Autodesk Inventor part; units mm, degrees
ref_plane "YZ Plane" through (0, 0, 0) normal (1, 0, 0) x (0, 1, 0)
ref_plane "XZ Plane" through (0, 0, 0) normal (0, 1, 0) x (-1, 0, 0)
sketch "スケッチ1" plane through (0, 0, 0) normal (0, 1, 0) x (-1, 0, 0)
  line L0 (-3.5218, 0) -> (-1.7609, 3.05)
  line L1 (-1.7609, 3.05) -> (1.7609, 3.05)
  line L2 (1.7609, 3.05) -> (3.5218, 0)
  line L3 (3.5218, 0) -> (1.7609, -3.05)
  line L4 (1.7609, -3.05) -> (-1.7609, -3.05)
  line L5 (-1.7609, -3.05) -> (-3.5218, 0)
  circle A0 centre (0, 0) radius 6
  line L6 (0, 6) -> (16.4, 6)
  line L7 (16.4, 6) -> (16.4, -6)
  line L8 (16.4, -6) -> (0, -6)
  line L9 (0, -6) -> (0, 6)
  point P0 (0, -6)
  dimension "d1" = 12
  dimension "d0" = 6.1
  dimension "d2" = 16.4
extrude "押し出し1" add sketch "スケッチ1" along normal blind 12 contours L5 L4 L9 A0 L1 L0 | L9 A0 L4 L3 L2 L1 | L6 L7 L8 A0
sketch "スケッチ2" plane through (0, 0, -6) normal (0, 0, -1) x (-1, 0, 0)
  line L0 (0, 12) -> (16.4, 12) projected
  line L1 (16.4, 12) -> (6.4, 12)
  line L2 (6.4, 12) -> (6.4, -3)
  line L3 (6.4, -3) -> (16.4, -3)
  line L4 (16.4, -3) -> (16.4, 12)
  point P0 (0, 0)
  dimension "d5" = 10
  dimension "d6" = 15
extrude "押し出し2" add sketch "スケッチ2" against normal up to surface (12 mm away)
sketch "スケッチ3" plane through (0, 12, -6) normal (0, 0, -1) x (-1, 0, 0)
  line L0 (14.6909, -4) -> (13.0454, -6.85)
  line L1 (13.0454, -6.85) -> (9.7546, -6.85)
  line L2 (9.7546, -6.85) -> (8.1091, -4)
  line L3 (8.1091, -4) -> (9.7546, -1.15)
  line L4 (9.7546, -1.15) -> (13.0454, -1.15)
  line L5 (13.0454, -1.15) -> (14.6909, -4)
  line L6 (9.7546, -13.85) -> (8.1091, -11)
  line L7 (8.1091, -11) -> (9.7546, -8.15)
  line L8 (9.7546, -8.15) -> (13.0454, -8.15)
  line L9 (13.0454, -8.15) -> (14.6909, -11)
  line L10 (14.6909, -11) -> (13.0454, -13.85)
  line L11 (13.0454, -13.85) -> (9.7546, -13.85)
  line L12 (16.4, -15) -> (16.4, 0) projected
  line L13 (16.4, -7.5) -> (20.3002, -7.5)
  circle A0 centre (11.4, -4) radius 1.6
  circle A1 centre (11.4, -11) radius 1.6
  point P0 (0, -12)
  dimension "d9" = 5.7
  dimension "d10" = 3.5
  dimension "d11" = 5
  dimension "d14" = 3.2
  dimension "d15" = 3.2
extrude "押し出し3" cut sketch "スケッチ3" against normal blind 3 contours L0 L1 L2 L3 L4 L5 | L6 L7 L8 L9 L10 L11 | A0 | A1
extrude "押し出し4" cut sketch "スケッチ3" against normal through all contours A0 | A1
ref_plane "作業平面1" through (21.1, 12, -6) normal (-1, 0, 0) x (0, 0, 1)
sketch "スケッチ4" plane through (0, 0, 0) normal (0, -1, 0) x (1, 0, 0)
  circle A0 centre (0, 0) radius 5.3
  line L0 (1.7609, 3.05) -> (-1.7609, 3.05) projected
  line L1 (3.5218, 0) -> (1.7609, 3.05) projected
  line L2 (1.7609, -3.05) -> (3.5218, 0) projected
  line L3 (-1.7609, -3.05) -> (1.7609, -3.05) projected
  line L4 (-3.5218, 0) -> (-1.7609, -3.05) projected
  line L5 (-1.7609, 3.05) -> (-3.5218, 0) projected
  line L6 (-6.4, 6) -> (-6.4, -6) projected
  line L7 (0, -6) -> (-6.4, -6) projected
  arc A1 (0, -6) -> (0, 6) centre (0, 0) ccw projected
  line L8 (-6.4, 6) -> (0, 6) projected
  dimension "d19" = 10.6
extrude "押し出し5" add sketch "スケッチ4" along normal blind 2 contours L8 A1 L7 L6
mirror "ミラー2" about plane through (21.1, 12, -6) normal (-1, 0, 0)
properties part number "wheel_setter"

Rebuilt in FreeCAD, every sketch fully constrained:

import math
import FreeCAD as App
import Part
import Sketcher

V = App.Vector
Q = App.Units.Quantity

doc = App.newDocument("Part")
body = doc.addObject("PartDesign::Body", "Body")
body.AllowCompound = True

# Sketch on XZ plane
sketch1 = body.newObject("Sketcher::SketchObject", "Sketch")
sketch1.AttachmentSupport = (doc.getObject("XZ_Plane"), [""])
sketch1.MapMode = "FlatFace"
sketch1.addGeometry(Part.ArcOfCircle(Part.Circle(V(0, 0, 0), V(0, 0, 1), 6), math.radians(-90), math.radians(90)), False)
sketch1.addGeometry(Part.LineSegment(V(0, -6, 0), V(-16.4, -6, 0)), False)
sketch1.addGeometry(Part.LineSegment(V(-16.4, -6, 0), V(-16.4, 6, 0)), False)
sketch1.addGeometry(Part.LineSegment(V(-16.4, 6, 0), V(0, 6, 0)), False)
sketch1.addGeometry(Part.LineSegment(V(1.8, -3, 0), V(3.5, 0, 0)), False)
sketch1.addGeometry(Part.LineSegment(V(3.5, 0, 0), V(1.8, 3, 0)), False)
sketch1.addGeometry(Part.LineSegment(V(1.8, 3, 0), V(-1.8, 3, 0)), False)
sketch1.addGeometry(Part.LineSegment(V(-1.8, 3, 0), V(-3.5, 0, 0)), False)
sketch1.addGeometry(Part.LineSegment(V(-3.5, 0, 0), V(-1.8, -3, 0)), False)
sketch1.addGeometry(Part.LineSegment(V(-1.8, -3, 0), V(1.8, -3, 0)), False)
sketch1.addConstraint(Sketcher.Constraint("Tangent", 0, 1, 1, 1))
sketch1.addConstraint(Sketcher.Constraint("Coincident", 1, 2, 2, 1))
sketch1.addConstraint(Sketcher.Constraint("Coincident", 2, 2, 3, 1))
sketch1.addConstraint(Sketcher.Constraint("Tangent", 3, 2, 0, 2))
sketch1.addConstraint(Sketcher.Constraint("Coincident", 4, 2, 5, 1))
sketch1.addConstraint(Sketcher.Constraint("Coincident", 5, 2, 6, 1))
sketch1.addConstraint(Sketcher.Constraint("Coincident", 6, 2, 7, 1))
sketch1.addConstraint(Sketcher.Constraint("Coincident", 7, 2, 8, 1))
sketch1.addConstraint(Sketcher.Constraint("Coincident", 8, 2, 9, 1))
sketch1.addConstraint(Sketcher.Constraint("Coincident", 9, 2, 4, 1))
sketch1.addConstraint(Sketcher.Constraint("Horizontal", 1))
sketch1.addConstraint(Sketcher.Constraint("Vertical", 2))
sketch1.addConstraint(Sketcher.Constraint("Horizontal", 3))
sketch1.addConstraint(Sketcher.Constraint("Horizontal", 6))
sketch1.addConstraint(Sketcher.Constraint("Horizontal", 9))
sketch1.addConstraint(Sketcher.Constraint("Coincident", 0, 3, -1, 1))
sketch1.addConstraint(Sketcher.Constraint("Symmetric", 4, 2, 7, 2, -1, 1))
sketch1.addConstraint(Sketcher.Constraint("Symmetric", 5, 2, 8, 2, -1, 1))
sketch1.addConstraint(Sketcher.Constraint("PointOnObject", 4, 2, -1))
sketch1.addConstraint(Sketcher.Constraint("Parallel", 4, 7))
sketch1.addConstraint(Sketcher.Constraint("Vertical", 6, 2, 8, 2))
sketch1.addConstraint(Sketcher.Constraint("Radius", 0, Q("6 mm")))
sketch1.addConstraint(Sketcher.Constraint("DistanceX", 1, 2, 1, 1, Q("16.4 mm")))
sketch1.addConstraint(Sketcher.Constraint("DistanceY", 8, 2, 6, 2, Q("6.1 mm")))
sketch1.addConstraint(Sketcher.Constraint("Angle", 4, Q("60.0003 deg")))
sketch1.addConstraint(Sketcher.Constraint("DistanceX", 6, 2, 6, 1, Q("3.5218 mm")))
pad1 = body.newObject("PartDesign::Pad", "Pad")
pad1.Profile = sketch1
pad1.Length = 12
pad1.Reversed = True

# Sketch on XY plane
sketch2 = body.newObject("Sketcher::SketchObject", "Sketch001")
sketch2.AttachmentSupport = (doc.getObject("XY_Plane"), [""])
sketch2.MapMode = "FlatFace"
sketch2.AttachmentOffset = App.Placement(V(0, 0, -6), App.Rotation())
sketch2.addGeometry(Part.LineSegment(V(-16, 12, 0), V(-6, 12, 0)), False)
sketch2.addGeometry(Part.LineSegment(V(-6, 12, 0), V(-6, -3, 0)), False)
sketch2.addGeometry(Part.LineSegment(V(-6, -3, 0), V(-16, -3, 0)), False)
sketch2.addGeometry(Part.LineSegment(V(-16, -3, 0), V(-16, 12, 0)), False)
sketch2.addConstraint(Sketcher.Constraint("Coincident", 0, 2, 1, 1))
sketch2.addConstraint(Sketcher.Constraint("Coincident", 1, 2, 2, 1))
sketch2.addConstraint(Sketcher.Constraint("Coincident", 2, 2, 3, 1))
sketch2.addConstraint(Sketcher.Constraint("Coincident", 3, 2, 0, 1))
sketch2.addConstraint(Sketcher.Constraint("Horizontal", 0))
sketch2.addConstraint(Sketcher.Constraint("Vertical", 1))
sketch2.addConstraint(Sketcher.Constraint("Horizontal", 2))
sketch2.addConstraint(Sketcher.Constraint("Vertical", 3))
sketch2.addConstraint(Sketcher.Constraint("DistanceX", 0, 1, 0, 2, Q("10 mm")))
sketch2.addConstraint(Sketcher.Constraint("DistanceY", 1, 2, 1, 1, Q("15 mm")))
sketch2.addConstraint(Sketcher.Constraint("DistanceY", -1, 1, 0, 2, Q("12 mm")))
sketch2.addConstraint(Sketcher.Constraint("DistanceX", 0, 2, -1, 1, Q("6.4 mm")))
pad2 = body.newObject("PartDesign::Pad", "Pad001")
pad2.Profile = sketch2
pad2.Length = 12

# Sketch on XY plane
sketch3 = body.newObject("Sketcher::SketchObject", "Sketch002")
sketch3.AttachmentSupport = (doc.getObject("XY_Plane"), [""])
sketch3.MapMode = "FlatFace"
sketch3.AttachmentOffset = App.Placement(V(0, 0, -6), App.Rotation())
sketch3.addGeometry(Part.LineSegment(V(-13, 5.2, 0), V(-14.7, 8, 0)), False)
sketch3.addGeometry(Part.LineSegment(V(-14.7, 8, 0), V(-13, 10.8, 0)), False)
sketch3.addGeometry(Part.LineSegment(V(-13, 10.8, 0), V(-9.8, 10.8, 0)), False)
sketch3.addGeometry(Part.LineSegment(V(-9.8, 10.8, 0), V(-8.1, 8, 0)), False)
sketch3.addGeometry(Part.LineSegment(V(-8.1, 8, 0), V(-9.8, 5.2, 0)), False)
sketch3.addGeometry(Part.LineSegment(V(-9.8, 5.2, 0), V(-13, 5.2, 0)), False)
sketch3.addGeometry(Part.LineSegment(V(-8.1, 1, 0), V(-9.8, -1.9, 0)), False)
sketch3.addGeometry(Part.LineSegment(V(-9.8, -1.9, 0), V(-13, -1.9, 0)), False)
sketch3.addGeometry(Part.LineSegment(V(-13, -1.9, 0), V(-14.7, 1, 0)), False)
sketch3.addGeometry(Part.LineSegment(V(-14.7, 1, 0), V(-13, 3.9, 0)), False)
sketch3.addGeometry(Part.LineSegment(V(-13, 3.9, 0), V(-9.8, 3.9, 0)), False)
sketch3.addGeometry(Part.LineSegment(V(-9.8, 3.9, 0), V(-8.1, 1, 0)), False)
sketch3.addConstraint(Sketcher.Constraint("Coincident", 0, 2, 1, 1))
sketch3.addConstraint(Sketcher.Constraint("Coincident", 1, 2, 2, 1))
sketch3.addConstraint(Sketcher.Constraint("Coincident", 2, 2, 3, 1))
sketch3.addConstraint(Sketcher.Constraint("Coincident", 3, 2, 4, 1))
sketch3.addConstraint(Sketcher.Constraint("Coincident", 4, 2, 5, 1))
sketch3.addConstraint(Sketcher.Constraint("Coincident", 5, 2, 0, 1))
sketch3.addConstraint(Sketcher.Constraint("Coincident", 6, 2, 7, 1))
sketch3.addConstraint(Sketcher.Constraint("Coincident", 7, 2, 8, 1))
sketch3.addConstraint(Sketcher.Constraint("Coincident", 8, 2, 9, 1))
sketch3.addConstraint(Sketcher.Constraint("Coincident", 9, 2, 10, 1))
sketch3.addConstraint(Sketcher.Constraint("Coincident", 10, 2, 11, 1))
sketch3.addConstraint(Sketcher.Constraint("Coincident", 11, 2, 6, 1))
sketch3.addConstraint(Sketcher.Constraint("Horizontal", 2))
sketch3.addConstraint(Sketcher.Constraint("Horizontal", 5))
sketch3.addConstraint(Sketcher.Constraint("Horizontal", 7))
sketch3.addConstraint(Sketcher.Constraint("Horizontal", 10))
sketch3.addConstraint(Sketcher.Constraint("Parallel", 0, 3))
sketch3.addConstraint(Sketcher.Constraint("Parallel", 1, 4))
sketch3.addConstraint(Sketcher.Constraint("Parallel", 4, 6))
sketch3.addConstraint(Sketcher.Constraint("Parallel", 3, 8))
sketch3.addConstraint(Sketcher.Constraint("Parallel", 6, 9))
sketch3.addConstraint(Sketcher.Constraint("Parallel", 8, 11))
sketch3.addConstraint(Sketcher.Constraint("Horizontal", 0, 2, 3, 2))
sketch3.addConstraint(Sketcher.Constraint("Horizontal", 8, 2, 11, 2))
sketch3.addConstraint(Sketcher.Constraint("Vertical", 2, 2, 4, 2))
sketch3.addConstraint(Sketcher.Constraint("Vertical", 1, 2, 5, 2))
sketch3.addConstraint(Sketcher.Constraint("Vertical", 4, 2, 6, 2))
sketch3.addConstraint(Sketcher.Constraint("Vertical", 5, 2, 7, 2))
sketch3.addConstraint(Sketcher.Constraint("Vertical", 0, 2, 8, 2))
sketch3.addConstraint(Sketcher.Constraint("Vertical", 7, 2, 9, 2))
sketch3.addConstraint(Sketcher.Constraint("DistanceY", 4, 2, 2, 2, Q("5.7 mm")))
sketch3.addConstraint(Sketcher.Constraint("Angle", 0, Q("120.0008 deg")))
sketch3.addConstraint(Sketcher.Constraint("DistanceY", -1, 1, 0, 2, Q("8 mm")))
sketch3.addConstraint(Sketcher.Constraint("DistanceY", -1, 1, 8, 2, Q("1 mm")))
sketch3.addConstraint(Sketcher.Constraint("DistanceX", 2, 1, 2, 2, Q("3.2908 mm")))
sketch3.addConstraint(Sketcher.Constraint("DistanceX", 0, 2, -1, 1, Q("14.691 mm")))
pocket1 = body.newObject("PartDesign::Pocket", "Pocket")
pocket1.Profile = sketch3
pocket1.Length = 3
pocket1.Reversed = True

# Sketch on XY plane
sketch4 = body.newObject("Sketcher::SketchObject", "Sketch003")
sketch4.AttachmentSupport = (doc.getObject("XY_Plane"), [""])
sketch4.MapMode = "FlatFace"
sketch4.AttachmentOffset = App.Placement(V(0, 0, -6), App.Rotation())
sketch4.addGeometry(Part.Circle(V(-11.4, 8, 0), V(0, 0, 1), 1.6), False)
sketch4.addGeometry(Part.Circle(V(-11.4, 1, 0), V(0, 0, 1), 1.6), False)
sketch4.addConstraint(Sketcher.Constraint("Equal", 0, 1))
sketch4.addConstraint(Sketcher.Constraint("Vertical", 0, 3, 1, 3))
sketch4.addConstraint(Sketcher.Constraint("Diameter", 0, Q("3.2 mm")))
sketch4.addConstraint(Sketcher.Constraint("DistanceY", -1, 1, 0, 3, Q("8 mm")))
sketch4.addConstraint(Sketcher.Constraint("DistanceY", -1, 1, 1, 3, Q("1 mm")))
sketch4.addConstraint(Sketcher.Constraint("DistanceX", 0, 3, -1, 1, Q("11.4 mm")))
pocket2 = body.newObject("PartDesign::Pocket", "Pocket001")
pocket2.Profile = sketch4
pocket2.Type = "ThroughAll"
pocket2.Reversed = True

# Sketch on XZ plane
sketch5 = body.newObject("Sketcher::SketchObject", "Sketch004")
sketch5.AttachmentSupport = (doc.getObject("XZ_Plane"), [""])
sketch5.MapMode = "FlatFace"
sketch5.addGeometry(Part.LineSegment(V(0, 6, 0), V(-6, 6, 0)), False)
sketch5.addGeometry(Part.LineSegment(V(-6, 6, 0), V(-6, -6, 0)), False)
sketch5.addGeometry(Part.LineSegment(V(-6, -6, 0), V(0, -6, 0)), False)
sketch5.addGeometry(Part.ArcOfCircle(Part.Circle(V(0, 0, 0), V(0, 0, 1), 6), math.radians(-90), math.radians(90)), False)
sketch5.addGeometry(Part.Circle(V(0, 0, 0), V(0, 0, 1), 5), False)
sketch5.addConstraint(Sketcher.Constraint("Coincident", 0, 2, 1, 1))
sketch5.addConstraint(Sketcher.Constraint("Coincident", 1, 2, 2, 1))
sketch5.addConstraint(Sketcher.Constraint("Tangent", 2, 2, 3, 1))
sketch5.addConstraint(Sketcher.Constraint("Tangent", 3, 2, 0, 1))
sketch5.addConstraint(Sketcher.Constraint("Horizontal", 0))
sketch5.addConstraint(Sketcher.Constraint("Vertical", 1))
sketch5.addConstraint(Sketcher.Constraint("Horizontal", 2))
sketch5.addConstraint(Sketcher.Constraint("Coincident", 3, 3, -1, 1))
sketch5.addConstraint(Sketcher.Constraint("Coincident", 4, 3, -1, 1))
sketch5.addConstraint(Sketcher.Constraint("Diameter", 4, Q("10.6 mm")))
sketch5.addConstraint(Sketcher.Constraint("Radius", 3, Q("6 mm")))
sketch5.addConstraint(Sketcher.Constraint("DistanceX", 0, 2, 0, 1, Q("6.4 mm")))
pad3 = body.newObject("PartDesign::Pad", "Pad002")
pad3.Profile = sketch5
pad3.Length = 2
doc.recompute()

datumplane = body.newObject("PartDesign::Plane", "DatumPlane")
datumplane.AttachmentSupport = (doc.getObject("YZ_Plane"), [""])
datumplane.MapMode = "FlatFace"
datumplane.AttachmentOffset = App.Placement(V(0, 0, 21.1), App.Rotation())
mirrored = body.newObject("PartDesign::Mirrored", "Mirrored")
mirrored.TransformMode = "Transform body"
mirrored.MirrorPlane = (datumplane, [""])
body.Tip = mirrored

doc.recompute()
